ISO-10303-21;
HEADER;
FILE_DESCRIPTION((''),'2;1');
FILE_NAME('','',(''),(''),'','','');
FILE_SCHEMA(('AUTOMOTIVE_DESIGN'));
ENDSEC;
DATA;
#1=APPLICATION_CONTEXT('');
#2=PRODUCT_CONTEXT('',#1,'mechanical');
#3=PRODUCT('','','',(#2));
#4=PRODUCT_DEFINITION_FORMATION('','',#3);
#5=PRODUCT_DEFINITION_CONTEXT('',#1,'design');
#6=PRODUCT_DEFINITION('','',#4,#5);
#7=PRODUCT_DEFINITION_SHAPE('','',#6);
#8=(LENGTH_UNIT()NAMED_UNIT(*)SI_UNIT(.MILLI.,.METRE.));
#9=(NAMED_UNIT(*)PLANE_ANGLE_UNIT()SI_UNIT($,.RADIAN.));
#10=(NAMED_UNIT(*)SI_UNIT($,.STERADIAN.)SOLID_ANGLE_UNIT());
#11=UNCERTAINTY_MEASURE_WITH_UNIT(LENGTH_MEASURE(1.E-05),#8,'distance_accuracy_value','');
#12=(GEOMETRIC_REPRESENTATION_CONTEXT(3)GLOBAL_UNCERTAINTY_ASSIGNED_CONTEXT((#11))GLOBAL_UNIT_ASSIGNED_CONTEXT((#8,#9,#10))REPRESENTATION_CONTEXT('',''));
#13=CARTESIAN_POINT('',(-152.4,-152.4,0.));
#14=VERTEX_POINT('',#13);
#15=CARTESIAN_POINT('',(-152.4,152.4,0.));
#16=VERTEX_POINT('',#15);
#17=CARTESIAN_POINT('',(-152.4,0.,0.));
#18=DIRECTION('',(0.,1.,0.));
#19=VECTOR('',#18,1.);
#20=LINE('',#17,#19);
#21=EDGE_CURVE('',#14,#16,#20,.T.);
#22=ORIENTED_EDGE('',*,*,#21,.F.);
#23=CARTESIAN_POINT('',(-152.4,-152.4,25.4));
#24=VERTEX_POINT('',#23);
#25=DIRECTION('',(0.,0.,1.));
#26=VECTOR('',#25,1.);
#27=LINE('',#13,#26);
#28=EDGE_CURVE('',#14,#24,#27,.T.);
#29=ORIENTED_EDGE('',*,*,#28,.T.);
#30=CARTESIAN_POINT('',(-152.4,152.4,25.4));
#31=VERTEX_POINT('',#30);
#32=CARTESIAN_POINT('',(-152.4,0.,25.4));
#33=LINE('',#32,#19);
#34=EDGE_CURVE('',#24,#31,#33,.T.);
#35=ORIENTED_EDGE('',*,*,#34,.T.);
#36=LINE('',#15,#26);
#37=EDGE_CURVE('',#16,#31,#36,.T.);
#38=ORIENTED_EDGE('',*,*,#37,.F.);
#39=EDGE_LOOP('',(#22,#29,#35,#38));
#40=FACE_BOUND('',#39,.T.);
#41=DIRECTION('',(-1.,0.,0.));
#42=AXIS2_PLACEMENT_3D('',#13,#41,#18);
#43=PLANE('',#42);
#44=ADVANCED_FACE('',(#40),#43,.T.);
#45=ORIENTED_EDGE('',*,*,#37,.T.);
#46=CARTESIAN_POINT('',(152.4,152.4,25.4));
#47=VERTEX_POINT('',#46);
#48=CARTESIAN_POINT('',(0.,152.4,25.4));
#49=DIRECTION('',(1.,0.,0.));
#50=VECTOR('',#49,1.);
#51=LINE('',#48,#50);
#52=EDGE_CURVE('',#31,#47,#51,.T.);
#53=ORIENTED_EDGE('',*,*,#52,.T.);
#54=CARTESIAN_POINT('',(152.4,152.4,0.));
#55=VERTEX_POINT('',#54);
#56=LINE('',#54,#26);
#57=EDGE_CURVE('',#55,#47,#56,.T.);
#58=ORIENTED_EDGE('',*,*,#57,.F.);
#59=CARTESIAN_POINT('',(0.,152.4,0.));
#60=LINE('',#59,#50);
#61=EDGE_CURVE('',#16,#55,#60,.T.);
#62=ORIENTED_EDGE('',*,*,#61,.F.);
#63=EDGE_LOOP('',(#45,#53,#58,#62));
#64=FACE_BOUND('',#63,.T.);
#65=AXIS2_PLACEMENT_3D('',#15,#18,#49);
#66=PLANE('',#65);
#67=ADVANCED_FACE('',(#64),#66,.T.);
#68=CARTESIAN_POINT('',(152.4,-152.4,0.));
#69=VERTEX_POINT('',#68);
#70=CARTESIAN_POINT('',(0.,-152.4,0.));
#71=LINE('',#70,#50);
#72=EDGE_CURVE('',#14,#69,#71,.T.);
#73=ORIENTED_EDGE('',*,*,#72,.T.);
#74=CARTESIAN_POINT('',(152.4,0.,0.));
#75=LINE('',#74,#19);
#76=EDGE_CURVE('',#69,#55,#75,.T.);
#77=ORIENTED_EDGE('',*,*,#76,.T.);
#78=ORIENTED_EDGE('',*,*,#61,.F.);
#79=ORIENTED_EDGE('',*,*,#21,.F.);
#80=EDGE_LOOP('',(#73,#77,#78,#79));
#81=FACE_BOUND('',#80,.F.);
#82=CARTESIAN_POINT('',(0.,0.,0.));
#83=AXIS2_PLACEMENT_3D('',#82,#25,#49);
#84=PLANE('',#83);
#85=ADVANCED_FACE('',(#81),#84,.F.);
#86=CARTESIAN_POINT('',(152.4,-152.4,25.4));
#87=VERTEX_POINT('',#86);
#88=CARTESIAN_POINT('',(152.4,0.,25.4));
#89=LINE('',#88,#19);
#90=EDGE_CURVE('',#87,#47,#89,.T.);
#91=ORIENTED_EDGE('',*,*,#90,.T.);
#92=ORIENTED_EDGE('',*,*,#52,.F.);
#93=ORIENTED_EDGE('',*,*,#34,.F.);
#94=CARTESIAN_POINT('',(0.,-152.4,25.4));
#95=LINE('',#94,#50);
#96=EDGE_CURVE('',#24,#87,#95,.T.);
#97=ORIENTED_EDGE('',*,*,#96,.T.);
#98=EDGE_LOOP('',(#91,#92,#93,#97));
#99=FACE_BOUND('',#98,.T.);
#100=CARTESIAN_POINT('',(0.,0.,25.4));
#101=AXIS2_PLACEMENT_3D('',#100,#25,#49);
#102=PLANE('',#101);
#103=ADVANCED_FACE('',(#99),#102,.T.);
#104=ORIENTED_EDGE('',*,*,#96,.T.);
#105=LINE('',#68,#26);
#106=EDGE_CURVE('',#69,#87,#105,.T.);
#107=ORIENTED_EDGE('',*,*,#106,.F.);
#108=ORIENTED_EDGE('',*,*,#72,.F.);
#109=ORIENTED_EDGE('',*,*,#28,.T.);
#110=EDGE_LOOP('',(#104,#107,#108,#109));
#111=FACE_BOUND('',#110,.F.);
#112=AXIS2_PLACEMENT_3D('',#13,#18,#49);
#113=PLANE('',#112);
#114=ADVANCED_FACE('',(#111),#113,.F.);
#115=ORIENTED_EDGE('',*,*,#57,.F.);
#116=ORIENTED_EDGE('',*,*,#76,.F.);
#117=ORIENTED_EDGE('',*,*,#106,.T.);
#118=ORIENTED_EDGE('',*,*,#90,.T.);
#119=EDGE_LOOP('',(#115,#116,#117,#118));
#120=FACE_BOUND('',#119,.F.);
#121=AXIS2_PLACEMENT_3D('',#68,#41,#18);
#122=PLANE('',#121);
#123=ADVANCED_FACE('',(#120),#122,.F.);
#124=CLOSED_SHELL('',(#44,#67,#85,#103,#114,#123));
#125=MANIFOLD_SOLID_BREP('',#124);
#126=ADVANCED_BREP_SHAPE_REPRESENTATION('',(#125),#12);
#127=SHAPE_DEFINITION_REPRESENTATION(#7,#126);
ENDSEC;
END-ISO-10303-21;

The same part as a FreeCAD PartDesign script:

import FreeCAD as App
import Part
import Sketcher

V = App.Vector
Q = App.Units.Quantity

doc = App.newDocument("Part")
params = doc.addObject("Spreadsheet::Sheet", "Params")
for row, (alias, value) in enumerate([
    ("sketch1_width", "12 in"),
    ("pad1_length", "1 in"),
], start=1):
    params.set(f"A{row}", alias)
    params.set(f"B{row}", "=" + value)
    params.setAlias(f"B{row}", alias)

body = doc.addObject("PartDesign::Body", "Body")

# Sketch on XY plane
sketch1 = body.newObject("Sketcher::SketchObject", "Sketch")
sketch1.AttachmentSupport = (doc.getObject("XY_Plane"), [""])
sketch1.MapMode = "FlatFace"
sketch1.addGeometry([
    Part.LineSegment(V(-152, 152, 0), V(-152, -152, 0)),
    Part.LineSegment(V(-152, -152, 0), V(152, -152, 0)),
    Part.LineSegment(V(152, -152, 0), V(152, 152, 0)),
    Part.LineSegment(V(152, 152, 0), V(-152, 152, 0)),
], False)
sketch1.addConstraint([
    Sketcher.Constraint("Coincident", 0, 2, 1, 1),
    Sketcher.Constraint("Coincident", 1, 2, 2, 1),
    Sketcher.Constraint("Coincident", 2, 2, 3, 1),
    Sketcher.Constraint("Coincident", 3, 2, 0, 1),
    Sketcher.Constraint("Vertical", 0),
    Sketcher.Constraint("Horizontal", 1),
    Sketcher.Constraint("Vertical", 2),
    Sketcher.Constraint("Horizontal", 3),
    Sketcher.Constraint("Symmetric", 0, 2, 2, 2, -1, 1),
    Sketcher.Constraint("Equal", 3, 0),
    Sketcher.Constraint("DistanceX", 1, 1, 1, 2, Q("12 in")),
])
sketch1.setExpression("Constraints[10]", "Params.sketch1_width")
pad1 = body.newObject("PartDesign::Pad", "Pad")
pad1.Profile = sketch1
pad1.setExpression("Length", "Params.pad1_length")

doc.recompute()
